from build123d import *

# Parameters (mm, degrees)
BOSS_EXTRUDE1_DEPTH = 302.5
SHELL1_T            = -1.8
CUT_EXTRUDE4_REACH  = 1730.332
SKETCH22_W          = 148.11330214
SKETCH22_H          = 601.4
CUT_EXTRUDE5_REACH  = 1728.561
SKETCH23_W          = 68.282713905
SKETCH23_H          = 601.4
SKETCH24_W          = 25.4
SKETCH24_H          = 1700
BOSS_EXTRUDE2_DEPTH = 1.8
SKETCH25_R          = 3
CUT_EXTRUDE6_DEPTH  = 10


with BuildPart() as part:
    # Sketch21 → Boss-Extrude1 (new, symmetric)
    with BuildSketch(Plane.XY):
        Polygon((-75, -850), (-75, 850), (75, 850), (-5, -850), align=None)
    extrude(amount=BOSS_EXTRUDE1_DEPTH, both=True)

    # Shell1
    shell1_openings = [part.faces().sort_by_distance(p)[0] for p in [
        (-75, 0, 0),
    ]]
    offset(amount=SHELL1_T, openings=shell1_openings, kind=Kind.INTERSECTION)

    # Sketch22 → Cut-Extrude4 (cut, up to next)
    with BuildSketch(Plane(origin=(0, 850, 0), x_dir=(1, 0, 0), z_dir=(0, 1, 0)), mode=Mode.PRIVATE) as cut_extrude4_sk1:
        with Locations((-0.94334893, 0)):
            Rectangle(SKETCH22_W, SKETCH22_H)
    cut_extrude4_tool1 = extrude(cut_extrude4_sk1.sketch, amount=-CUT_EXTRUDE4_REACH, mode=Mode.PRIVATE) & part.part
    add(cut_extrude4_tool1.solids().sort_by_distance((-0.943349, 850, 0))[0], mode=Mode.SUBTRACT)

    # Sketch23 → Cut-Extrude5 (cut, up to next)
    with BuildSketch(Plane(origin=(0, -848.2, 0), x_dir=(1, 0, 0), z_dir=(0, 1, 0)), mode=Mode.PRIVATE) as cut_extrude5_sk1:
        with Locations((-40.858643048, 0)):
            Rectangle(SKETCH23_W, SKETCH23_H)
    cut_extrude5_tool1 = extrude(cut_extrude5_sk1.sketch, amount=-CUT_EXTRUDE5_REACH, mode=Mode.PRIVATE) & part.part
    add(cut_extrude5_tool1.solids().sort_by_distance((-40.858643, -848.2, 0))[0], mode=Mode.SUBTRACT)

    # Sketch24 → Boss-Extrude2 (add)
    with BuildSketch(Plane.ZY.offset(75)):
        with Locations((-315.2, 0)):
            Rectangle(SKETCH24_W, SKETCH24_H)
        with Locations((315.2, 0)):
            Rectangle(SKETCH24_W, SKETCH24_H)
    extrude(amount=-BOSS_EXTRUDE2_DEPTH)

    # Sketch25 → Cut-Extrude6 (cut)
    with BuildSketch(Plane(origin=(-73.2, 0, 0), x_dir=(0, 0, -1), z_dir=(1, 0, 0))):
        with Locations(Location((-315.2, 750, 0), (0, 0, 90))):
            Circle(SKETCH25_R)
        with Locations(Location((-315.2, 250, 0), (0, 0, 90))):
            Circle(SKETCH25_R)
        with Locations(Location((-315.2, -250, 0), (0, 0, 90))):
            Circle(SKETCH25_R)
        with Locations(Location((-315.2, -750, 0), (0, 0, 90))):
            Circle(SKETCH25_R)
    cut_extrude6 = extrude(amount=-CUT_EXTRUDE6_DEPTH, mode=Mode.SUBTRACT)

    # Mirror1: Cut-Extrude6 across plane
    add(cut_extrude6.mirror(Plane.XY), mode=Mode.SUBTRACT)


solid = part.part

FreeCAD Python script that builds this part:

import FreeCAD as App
import Part
import Sketcher

V = App.Vector


def faces_at(feature, points):
    """Names of the faces that lie closest to the given points."""
    faces = feature.Shape.Faces
    near = lambda p: min(range(len(faces)), key=lambda i: faces[i].distToShape(Part.Vertex(*p))[0])
    return sorted({f"Face{near(p) + 1}" for p in points})

doc = App.newDocument("Part")
body = doc.addObject("PartDesign::Body", "Body")

# Sketch on XY plane
sketch1 = body.newObject("Sketcher::SketchObject", "Sketch")
sketch1.AttachmentSupport = (doc.getObject("XY_Plane"), [""])
sketch1.MapMode = "FlatFace"
sketch1.addGeometry([
    Part.LineSegment(V(-75, 850, 0), V(-75, -850, 0)),
    Part.LineSegment(V(-75, -850, 0), V(-5, -850, 0)),
    Part.LineSegment(V(-5, -850, 0), V(75, 850, 0)),
    Part.LineSegment(V(75, 850, 0), V(-75, 850, 0)),
], False)
sketch1.addConstraint([
    Sketcher.Constraint("Coincident", 0, 2, 1, 1),
    Sketcher.Constraint("Coincident", 1, 2, 2, 1),
    Sketcher.Constraint("Coincident", 2, 2, 3, 1),
    Sketcher.Constraint("Coincident", 3, 2, 0, 1),
    Sketcher.Constraint("Vertical", 0),
    Sketcher.Constraint("Horizontal", 1),
    Sketcher.Constraint("Horizontal", 3),
    Sketcher.Constraint("Symmetric", 0, 2, 2, 2, -1, 1),
    Sketcher.Constraint("DistanceX", 1, 1, 1, 2, 70.0),
    Sketcher.Constraint("DistanceX", 3, 2, 3, 1, 150.0),
    Sketcher.Constraint("DistanceY", 0, 2, 0, 1, 1700.0),
])
pad1 = body.newObject("PartDesign::Pad", "Pad")
pad1.Profile = sketch1
pad1.Length = 605
pad1.Midplane = True
doc.recompute()

thickness = body.newObject("PartDesign::Thickness", "Thickness")
thickness.Base = (pad1, faces_at(pad1, [(-75, 0, 0)]))
thickness.Value = 1.8
thickness.Reversed = True
thickness.Join = "Intersection"

# Sketch on XZ plane
sketch2 = body.newObject("Sketcher::SketchObject", "Sketch001")
sketch2.AttachmentSupport = (doc.getObject("XZ_Plane"), [""])
sketch2.MapMode = "FlatFace"
sketch2.AttachmentOffset = App.Placement(V(0, 0, -850), App.Rotation())
sketch2.addGeometry([
    Part.LineSegment(V(-75, -301, 0), V(-75, 301, 0)),
    Part.LineSegment(V(-75, 301, 0), V(73, 301, 0)),
    Part.LineSegment(V(73, 301, 0), V(73, -301, 0)),
    Part.LineSegment(V(73, -301, 0), V(-75, -301, 0)),
], False)
sketch2.addConstraint([
    Sketcher.Constraint("Coincident", 0, 2, 1, 1),
    Sketcher.Constraint("Coincident", 1, 2, 2, 1),
    Sketcher.Constraint("Coincident", 2, 2, 3, 1),
    Sketcher.Constraint("Coincident", 3, 2, 0, 1),
    Sketcher.Constraint("Vertical", 0),
    Sketcher.Constraint("Horizontal", 1),
    Sketcher.Constraint("Vertical", 2),
    Sketcher.Constraint("Horizontal", 3),
    Sketcher.Constraint("DistanceY", 0, 1, 0, 2, 601.4),
    Sketcher.Constraint("DistanceX", 0, 2, -1, 1, 75.0),
    Sketcher.Constraint("DistanceY", -1, 1, 0, 2, 300.7),
    Sketcher.Constraint("DistanceX", 1, 1, 1, 2, 148.113302),
])
pocket1 = body.newObject("PartDesign::Pocket", "Pocket")
pocket1.Profile = sketch2
pocket1.Type = "UpToFirst"
pocket1.Reversed = True

# Sketch on XZ plane
sketch3 = body.newObject("Sketcher::SketchObject", "Sketch002")
sketch3.AttachmentSupport = (doc.getObject("XZ_Plane"), [""])
sketch3.MapMode = "FlatFace"
sketch3.AttachmentOffset = App.Placement(V(0, 0, 848.2), App.Rotation())
sketch3.addGeometry([
    Part.LineSegment(V(-75, -301, 0), V(-75, 301, 0)),
    Part.LineSegment(V(-75, 301, 0), V(-7, 301, 0)),
    Part.LineSegment(V(-7, 301, 0), V(-7, -301, 0)),
    Part.LineSegment(V(-7, -301, 0), V(-75, -301, 0)),
], False)
sketch3.addConstraint([
    Sketcher.Constraint("Coincident", 0, 2, 1, 1),
    Sketcher.Constraint("Coincident", 1, 2, 2, 1),
    Sketcher.Constraint("Coincident", 2, 2, 3, 1),
    Sketcher.Constraint("Coincident", 3, 2, 0, 1),
    Sketcher.Constraint("Vertical", 0),
    Sketcher.Constraint("Horizontal", 1),
    Sketcher.Constraint("Vertical", 2),
    Sketcher.Constraint("Horizontal", 3),
    Sketcher.Constraint("DistanceY", 0, 1, 0, 2, 601.4),
    Sketcher.Constraint("DistanceX", 0, 2, -1, 1, 75.0),
    Sketcher.Constraint("DistanceY", -1, 1, 0, 2, 300.7),
    Sketcher.Constraint("DistanceX", 1, 1, 1, 2, 68.282714),
])
pocket2 = body.newObject("PartDesign::Pocket", "Pocket001")
pocket2.Profile = sketch3
pocket2.Type = "UpToFirst"
pocket2.Reversed = True

# Sketch on YZ plane
sketch4 = body.newObject("Sketcher::SketchObject", "Sketch003")
sketch4.AttachmentSupport = (doc.getObject("YZ_Plane"), [""])
sketch4.MapMode = "FlatFace"
sketch4.AttachmentOffset = App.Placement(V(0, 0, -75), App.Rotation())
sketch4.addGeometry([
    Part.LineSegment(V(850, -328, 0), V(-850, -328, 0)),  # 0
    Part.LineSegment(V(-850, -328, 0), V(-850, -302, 0)),  # 1
    Part.LineSegment(V(-850, -302, 0), V(850, -302, 0)),  # 2
    Part.LineSegment(V(850, -302, 0), V(850, -328, 0)),  # 3
    Part.LineSegment(V(850, 302, 0), V(-850, 302, 0)),  # 4
    Part.LineSegment(V(-850, 302, 0), V(-850, 328, 0)),  # 5
    Part.LineSegment(V(-850, 328, 0), V(850, 328, 0)),  # 6
    Part.LineSegment(V(850, 328, 0), V(850, 302, 0)),  # 7
], False)
sketch4.addConstraint([
    Sketcher.Constraint("Coincident", 0, 2, 1, 1),
    Sketcher.Constraint("Coincident", 1, 2, 2, 1),
    Sketcher.Constraint("Coincident", 2, 2, 3, 1),
    Sketcher.Constraint("Coincident", 3, 2, 0, 1),
    Sketcher.Constraint("Coincident", 4, 2, 5, 1),
    Sketcher.Constraint("Coincident", 5, 2, 6, 1),
    Sketcher.Constraint("Coincident", 6, 2, 7, 1),
    Sketcher.Constraint("Coincident", 7, 2, 4, 1),
    Sketcher.Constraint("Horizontal", 0),
    Sketcher.Constraint("Vertical", 1),
    Sketcher.Constraint("Horizontal", 2),
    Sketcher.Constraint("Vertical", 3),
    Sketcher.Constraint("Horizontal", 4),
    Sketcher.Constraint("Vertical", 5),
    Sketcher.Constraint("Horizontal", 6),
    Sketcher.Constraint("Vertical", 7),
    Sketcher.Constraint("Symmetric", 2, 2, 4, 2, -1, 1),
    Sketcher.Constraint("Symmetric", 0, 2, 6, 2, -1, 1),
    Sketcher.Constraint("Vertical", 1, 2, 4, 2),
    Sketcher.Constraint("DistanceX", 0, 2, 0, 1, 1700.0),
    Sketcher.Constraint("DistanceY", 1, 1, 1, 2, 25.4),
    Sketcher.Constraint("DistanceY", 1, 2, 4, 2, 605.0),
])
pad2 = body.newObject("PartDesign::Pad", "Pad001")
pad2.Profile = sketch4
pad2.Length = 1.8

# Sketch on YZ plane
sketch5 = body.newObject("Sketcher::SketchObject", "Sketch004")
sketch5.AttachmentSupport = (doc.getObject("YZ_Plane"), [""])
sketch5.MapMode = "FlatFace"
sketch5.AttachmentOffset = App.Placement(V(0, 0, -73.2), App.Rotation())
sketch5.addGeometry([
    Part.Circle(V(750, 315.2, 0), V(0, 0, 1), 3),
    Part.Circle(V(250, 315.2, 0), V(0, 0, 1), 3),
    Part.Circle(V(-250, 315.2, 0), V(0, 0, 1), 3),
    Part.Circle(V(-750, 315.2, 0), V(0, 0, 1), 3),
], False)
sketch5.addConstraint([
    Sketcher.Constraint("Equal", 0, 1),
    Sketcher.Constraint("Equal", 1, 2),
    Sketcher.Constraint("Equal", 2, 3),
    Sketcher.Constraint("Symmetric", 1, 3, 2, 3, -2),
    Sketcher.Constraint("Symmetric", 0, 3, 3, 3, -2),
    Sketcher.Constraint("Horizontal", 0, 3, 1, 3),
    Sketcher.Constraint("Diameter", 0, 6.0),
    Sketcher.Constraint("DistanceX", -1, 1, 0, 3, 750.0),
    Sketcher.Constraint("DistanceX", -1, 1, 1, 3, 250.0),
    Sketcher.Constraint("DistanceY", -1, 1, 0, 3, 315.2),
])
pocket3 = body.newObject("PartDesign::Pocket", "Pocket002")
pocket3.Profile = sketch5
pocket3.Length = 10
doc.recompute()

mirrored = body.newObject("PartDesign::Mirrored", "Mirrored")
mirrored.Originals = [pocket3]
mirrored.MirrorPlane = (doc.getObject("XY_Plane"), [""])
body.Tip = mirrored

doc.recompute()
